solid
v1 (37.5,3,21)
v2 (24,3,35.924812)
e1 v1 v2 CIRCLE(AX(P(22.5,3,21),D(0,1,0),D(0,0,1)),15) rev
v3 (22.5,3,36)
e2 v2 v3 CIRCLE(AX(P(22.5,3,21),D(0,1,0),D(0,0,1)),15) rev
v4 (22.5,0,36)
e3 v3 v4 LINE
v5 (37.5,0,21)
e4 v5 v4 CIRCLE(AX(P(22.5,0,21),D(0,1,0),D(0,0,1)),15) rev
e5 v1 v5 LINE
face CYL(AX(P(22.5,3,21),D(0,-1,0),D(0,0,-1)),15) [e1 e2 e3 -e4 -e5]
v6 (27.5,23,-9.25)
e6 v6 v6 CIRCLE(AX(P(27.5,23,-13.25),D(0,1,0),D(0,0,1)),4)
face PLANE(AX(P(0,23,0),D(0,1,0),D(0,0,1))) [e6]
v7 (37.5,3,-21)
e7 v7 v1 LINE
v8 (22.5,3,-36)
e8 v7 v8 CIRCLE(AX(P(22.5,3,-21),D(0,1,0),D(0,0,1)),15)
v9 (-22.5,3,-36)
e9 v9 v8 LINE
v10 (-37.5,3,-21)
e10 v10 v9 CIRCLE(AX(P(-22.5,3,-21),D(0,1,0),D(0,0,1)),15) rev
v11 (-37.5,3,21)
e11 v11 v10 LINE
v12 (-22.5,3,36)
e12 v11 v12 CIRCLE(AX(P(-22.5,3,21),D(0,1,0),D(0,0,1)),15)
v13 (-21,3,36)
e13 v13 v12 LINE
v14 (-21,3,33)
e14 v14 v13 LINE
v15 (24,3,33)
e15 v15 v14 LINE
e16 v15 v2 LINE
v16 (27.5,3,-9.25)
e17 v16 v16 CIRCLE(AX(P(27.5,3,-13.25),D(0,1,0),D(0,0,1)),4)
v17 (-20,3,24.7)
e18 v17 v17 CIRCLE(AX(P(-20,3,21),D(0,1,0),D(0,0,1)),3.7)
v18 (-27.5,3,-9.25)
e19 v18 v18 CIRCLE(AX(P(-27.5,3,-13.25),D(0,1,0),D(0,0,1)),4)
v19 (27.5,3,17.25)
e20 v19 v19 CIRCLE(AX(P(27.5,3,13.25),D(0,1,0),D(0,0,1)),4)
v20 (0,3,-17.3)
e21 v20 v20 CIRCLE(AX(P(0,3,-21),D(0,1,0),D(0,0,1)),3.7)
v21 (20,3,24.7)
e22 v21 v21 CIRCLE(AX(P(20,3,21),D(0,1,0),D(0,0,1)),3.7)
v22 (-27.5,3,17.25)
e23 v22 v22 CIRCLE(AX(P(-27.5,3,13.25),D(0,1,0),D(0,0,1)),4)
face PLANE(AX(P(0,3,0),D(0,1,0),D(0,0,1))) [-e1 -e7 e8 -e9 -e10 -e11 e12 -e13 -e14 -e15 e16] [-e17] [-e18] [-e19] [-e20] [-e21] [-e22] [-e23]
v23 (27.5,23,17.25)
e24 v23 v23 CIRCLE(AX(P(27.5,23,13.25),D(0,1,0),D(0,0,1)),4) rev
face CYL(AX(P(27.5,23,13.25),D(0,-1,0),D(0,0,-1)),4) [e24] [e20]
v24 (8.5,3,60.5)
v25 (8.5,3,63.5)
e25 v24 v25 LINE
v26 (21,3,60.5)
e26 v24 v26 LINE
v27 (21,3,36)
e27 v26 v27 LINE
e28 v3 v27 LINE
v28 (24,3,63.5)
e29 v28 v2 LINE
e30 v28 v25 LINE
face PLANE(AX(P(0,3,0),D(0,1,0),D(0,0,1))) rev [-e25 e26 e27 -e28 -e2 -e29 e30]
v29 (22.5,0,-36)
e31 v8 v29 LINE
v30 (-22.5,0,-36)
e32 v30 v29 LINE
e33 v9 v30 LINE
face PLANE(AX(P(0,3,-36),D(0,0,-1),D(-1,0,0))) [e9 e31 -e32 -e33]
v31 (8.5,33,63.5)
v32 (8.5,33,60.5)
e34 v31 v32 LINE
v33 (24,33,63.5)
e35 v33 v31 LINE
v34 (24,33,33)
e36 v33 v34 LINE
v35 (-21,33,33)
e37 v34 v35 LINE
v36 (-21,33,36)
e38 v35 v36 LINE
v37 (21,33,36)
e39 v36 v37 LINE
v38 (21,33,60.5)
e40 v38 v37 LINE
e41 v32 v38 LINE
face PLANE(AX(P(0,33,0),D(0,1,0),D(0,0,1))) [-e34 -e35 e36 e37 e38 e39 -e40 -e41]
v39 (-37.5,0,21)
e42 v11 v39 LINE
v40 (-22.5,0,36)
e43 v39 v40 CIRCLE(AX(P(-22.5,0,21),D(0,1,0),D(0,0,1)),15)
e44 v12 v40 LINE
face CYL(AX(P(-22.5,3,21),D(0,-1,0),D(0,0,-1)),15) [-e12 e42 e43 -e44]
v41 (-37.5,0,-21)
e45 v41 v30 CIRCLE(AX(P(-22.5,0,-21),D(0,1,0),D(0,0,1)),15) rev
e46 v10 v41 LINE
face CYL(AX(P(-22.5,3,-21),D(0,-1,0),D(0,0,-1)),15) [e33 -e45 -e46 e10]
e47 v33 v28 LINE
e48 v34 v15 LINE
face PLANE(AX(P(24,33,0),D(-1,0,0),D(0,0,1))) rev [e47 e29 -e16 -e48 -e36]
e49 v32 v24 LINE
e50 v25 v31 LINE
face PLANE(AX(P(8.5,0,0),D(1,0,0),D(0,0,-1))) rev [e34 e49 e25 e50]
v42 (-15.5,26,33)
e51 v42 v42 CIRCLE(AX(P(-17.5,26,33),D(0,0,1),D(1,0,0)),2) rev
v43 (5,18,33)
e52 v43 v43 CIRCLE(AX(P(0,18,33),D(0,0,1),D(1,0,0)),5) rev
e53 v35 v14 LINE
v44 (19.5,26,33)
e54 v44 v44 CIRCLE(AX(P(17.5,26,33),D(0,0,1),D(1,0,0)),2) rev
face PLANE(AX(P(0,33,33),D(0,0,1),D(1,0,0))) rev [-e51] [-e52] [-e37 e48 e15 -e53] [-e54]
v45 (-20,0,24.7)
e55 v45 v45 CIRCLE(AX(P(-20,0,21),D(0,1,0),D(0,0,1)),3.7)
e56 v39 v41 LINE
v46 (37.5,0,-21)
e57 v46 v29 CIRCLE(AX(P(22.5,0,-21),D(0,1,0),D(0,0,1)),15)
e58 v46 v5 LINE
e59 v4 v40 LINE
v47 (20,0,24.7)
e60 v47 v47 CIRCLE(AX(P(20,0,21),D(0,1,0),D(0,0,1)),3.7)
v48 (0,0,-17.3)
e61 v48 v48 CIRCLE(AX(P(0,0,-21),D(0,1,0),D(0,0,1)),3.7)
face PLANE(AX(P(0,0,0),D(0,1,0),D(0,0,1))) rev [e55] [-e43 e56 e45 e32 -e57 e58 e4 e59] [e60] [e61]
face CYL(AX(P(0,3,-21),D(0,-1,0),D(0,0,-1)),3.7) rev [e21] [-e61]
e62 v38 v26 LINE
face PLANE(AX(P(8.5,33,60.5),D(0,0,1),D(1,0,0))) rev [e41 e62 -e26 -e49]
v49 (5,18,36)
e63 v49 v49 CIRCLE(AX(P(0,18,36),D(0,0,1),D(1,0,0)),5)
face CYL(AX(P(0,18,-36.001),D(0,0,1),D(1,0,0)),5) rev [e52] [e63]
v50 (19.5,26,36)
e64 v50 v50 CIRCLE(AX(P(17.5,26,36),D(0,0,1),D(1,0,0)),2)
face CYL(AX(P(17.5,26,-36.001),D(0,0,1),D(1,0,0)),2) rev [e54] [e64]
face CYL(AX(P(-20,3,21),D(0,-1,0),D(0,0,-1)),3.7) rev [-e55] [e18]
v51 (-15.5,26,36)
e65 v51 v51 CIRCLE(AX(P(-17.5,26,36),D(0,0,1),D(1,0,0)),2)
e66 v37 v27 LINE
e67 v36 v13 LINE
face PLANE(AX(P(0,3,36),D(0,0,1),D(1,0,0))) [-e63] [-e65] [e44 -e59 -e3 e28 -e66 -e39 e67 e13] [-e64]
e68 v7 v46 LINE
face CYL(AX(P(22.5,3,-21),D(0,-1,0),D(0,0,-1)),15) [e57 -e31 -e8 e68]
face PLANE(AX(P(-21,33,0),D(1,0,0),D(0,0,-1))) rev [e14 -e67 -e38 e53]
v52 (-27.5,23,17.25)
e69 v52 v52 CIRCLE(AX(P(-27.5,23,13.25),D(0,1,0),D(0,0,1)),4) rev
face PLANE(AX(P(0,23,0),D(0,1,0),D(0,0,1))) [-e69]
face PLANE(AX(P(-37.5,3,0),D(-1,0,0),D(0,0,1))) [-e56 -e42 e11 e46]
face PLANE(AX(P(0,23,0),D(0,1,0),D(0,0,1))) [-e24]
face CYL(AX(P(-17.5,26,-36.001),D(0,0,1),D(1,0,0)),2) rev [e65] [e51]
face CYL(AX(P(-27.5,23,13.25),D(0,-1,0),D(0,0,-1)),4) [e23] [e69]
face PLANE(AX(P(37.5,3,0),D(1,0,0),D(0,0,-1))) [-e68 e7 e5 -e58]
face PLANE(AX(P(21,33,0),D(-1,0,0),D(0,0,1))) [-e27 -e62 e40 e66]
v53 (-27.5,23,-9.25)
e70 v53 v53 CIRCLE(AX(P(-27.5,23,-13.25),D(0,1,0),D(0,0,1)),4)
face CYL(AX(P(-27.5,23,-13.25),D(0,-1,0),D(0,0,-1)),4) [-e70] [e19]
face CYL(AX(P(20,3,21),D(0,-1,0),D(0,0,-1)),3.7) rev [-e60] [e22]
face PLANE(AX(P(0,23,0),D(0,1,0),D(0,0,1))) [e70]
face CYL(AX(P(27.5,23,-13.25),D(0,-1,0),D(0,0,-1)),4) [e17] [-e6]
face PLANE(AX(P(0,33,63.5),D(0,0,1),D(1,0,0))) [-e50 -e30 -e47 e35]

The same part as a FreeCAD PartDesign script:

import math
import FreeCAD as App
import Part
import Sketcher

V = App.Vector
Q = App.Units.Quantity


def add_polygon(sketch, points):
    """Adds a closed chain of lines whose ends are joined by coincident constraints."""
    first, n = sketch.GeometryCount, len(points)
    for a, b in zip(points, points[1:] + points[:1]):
        sketch.addGeometry(Part.LineSegment(App.Vector(*a, 0), App.Vector(*b, 0)), False)
    for i in range(n):
        sketch.addConstraint(Sketcher.Constraint("Coincident", first + i, 2, first + (i + 1) % n, 1))

doc = App.newDocument("Part")
body = doc.addObject("PartDesign::Body", "Body")

# Sketch on XZ plane
sketch1 = body.newObject("Sketcher::SketchObject", "Sketch")
sketch1.AttachmentSupport = (doc.getObject("XZ_Plane"), [""])
sketch1.MapMode = "FlatFace"
sketch1.addGeometry([
    Part.LineSegment(V(-37.5, -21, 0), V(-37.5, 21, 0)),  # 0
    Part.ArcOfCircle(Part.Circle(V(-22.5, 21, 0), V(0, 0, 1), 15), math.radians(90), math.radians(180)),  # 1
    Part.LineSegment(V(-22.5, 36, 0), V(22.5, 36, 0)),  # 2
    Part.ArcOfCircle(Part.Circle(V(22.5, 21, 0), V(0, 0, 1), 15), math.radians(0), math.radians(90)),  # 3
    Part.LineSegment(V(37.5, 21, 0), V(37.5, -21, 0)),  # 4
    Part.ArcOfCircle(Part.Circle(V(22.5, -21, 0), V(0, 0, 1), 15), math.radians(-90), math.radians(0)),  # 5
    Part.LineSegment(V(22.5, -36, 0), V(-22.5, -36, 0)),  # 6
    Part.ArcOfCircle(Part.Circle(V(-22.5, -21, 0), V(0, 0, 1), 15), math.radians(180), math.radians(270)),  # 7
    Part.Circle(V(20, 21, 0), V(0, 0, 1), 3.7),  # 8
    Part.Circle(V(-20, 21, 0), V(0, 0, 1), 3.7),  # 9
    Part.Circle(V(0, -21, 0), V(0, 0, 1), 3.7),  # 10
], False)
sketch1.addConstraint([
    Sketcher.Constraint("Tangent", 0, 2, 1, 2),
    Sketcher.Constraint("Tangent", 1, 1, 2, 1),
    Sketcher.Constraint("Tangent", 2, 2, 3, 2),
    Sketcher.Constraint("Tangent", 3, 1, 4, 1),
    Sketcher.Constraint("Tangent", 4, 2, 5, 2),
    Sketcher.Constraint("Tangent", 5, 1, 6, 1),
    Sketcher.Constraint("Tangent", 6, 2, 7, 2),
    Sketcher.Constraint("Tangent", 7, 1, 0, 1),
    Sketcher.Constraint("Vertical", 0),
    Sketcher.Constraint("Horizontal", 2),
    Sketcher.Constraint("Vertical", 4),
    Sketcher.Constraint("Horizontal", 6),
    Sketcher.Constraint("Equal", 1, 3),
    Sketcher.Constraint("Equal", 3, 5),
    Sketcher.Constraint("Equal", 5, 7),
    Sketcher.Constraint("Equal", 8, 9),
    Sketcher.Constraint("Equal", 9, 10),
    Sketcher.Constraint("Symmetric", 1, 3, 5, 3, -1, 1),
    Sketcher.Constraint("Symmetric", 8, 3, 9, 3, -2),
    Sketcher.Constraint("PointOnObject", 10, 3, -2),
    Sketcher.Constraint("Horizontal", 3, 3, 8, 3),
    Sketcher.Constraint("Horizontal", 7, 3, 10, 3),
    Sketcher.Constraint("Radius", 1, Q("15 mm")),
    Sketcher.Constraint("Diameter", 8, Q("7.4 mm")),
    Sketcher.Constraint("DistanceX", 2, 1, 2, 2, Q("45 mm")),
    Sketcher.Constraint("DistanceY", 0, 1, 0, 2, Q("42 mm")),
    Sketcher.Constraint("DistanceX", -1, 1, 8, 3, Q("20 mm")),
])
pad1 = body.newObject("PartDesign::Pad", "Pad")
pad1.Profile = sketch1
pad1.Length = 3
pad1.Reversed = True

# Sketch on XZ plane
sketch2 = body.newObject("Sketcher::SketchObject", "Sketch001")
sketch2.AttachmentSupport = (doc.getObject("XZ_Plane"), [""])
sketch2.MapMode = "FlatFace"
sketch2.AttachmentOffset = App.Placement(V(0, 0, -3), App.Rotation())
sketch2.addGeometry([
    Part.Circle(V(27.5, -13.2, 0), V(0, 0, 1), 4),
    Part.Circle(V(-27.5, 13.2, 0), V(0, 0, 1), 4),
    Part.Circle(V(27.5, 13.2, 0), V(0, 0, 1), 4),
    Part.Circle(V(-27.5, -13.2, 0), V(0, 0, 1), 4),
], False)
sketch2.addConstraint([
    Sketcher.Constraint("Equal", 0, 1),
    Sketcher.Constraint("Equal", 1, 2),
    Sketcher.Constraint("Equal", 2, 3),
    Sketcher.Constraint("Symmetric", 0, 3, 1, 3, -1, 1),
    Sketcher.Constraint("Symmetric", 2, 3, 3, 3, -1, 1),
    Sketcher.Constraint("Symmetric", 1, 3, 2, 3, -2),
    Sketcher.Constraint("Diameter", 0, Q("8 mm")),
    Sketcher.Constraint("DistanceX", 1, 3, 0, 3, Q("55 mm")),
    Sketcher.Constraint("DistanceY", 0, 3, 1, 3, Q("26.5 mm")),
])
pad2 = body.newObject("PartDesign::Pad", "Pad001")
pad2.Profile = sketch2
pad2.Length = 20
pad2.Reversed = True

# Sketch on XZ plane
sketch3 = body.newObject("Sketcher::SketchObject", "Sketch002")
sketch3.AttachmentSupport = (doc.getObject("XZ_Plane"), [""])
sketch3.MapMode = "FlatFace"
sketch3.AttachmentOffset = App.Placement(V(0, 0, -3), App.Rotation())
add_polygon(sketch3, [(24, 63.5), (24, 33), (-21, 33), (-21, 36), (21, 36), (21, 63.5)])  # lines 0-5
sketch3.addConstraint([
    Sketcher.Constraint("Vertical", 0),
    Sketcher.Constraint("Horizontal", 1),
    Sketcher.Constraint("Vertical", 2),
    Sketcher.Constraint("Horizontal", 3),
    Sketcher.Constraint("Vertical", 4),
    Sketcher.Constraint("Horizontal", 5),
    Sketcher.Constraint("Equal", 5, 2),
    Sketcher.Constraint("DistanceX", 1, 2, 1, 1, Q("45 mm")),
    Sketcher.Constraint("DistanceX", 3, 1, 3, 2, Q("42 mm")),
    Sketcher.Constraint("DistanceY", 0, 2, 0, 1, Q("30.5 mm")),
    Sketcher.Constraint("DistanceX", -1, 1, 0, 2, Q("24 mm")),
    Sketcher.Constraint("DistanceY", -1, 1, 0, 2, Q("33 mm")),
])
pad3 = body.newObject("PartDesign::Pad", "Pad002")
pad3.Profile = sketch3
pad3.Length = 30
pad3.Reversed = True

# Sketch on XY plane
sketch4 = body.newObject("Sketcher::SketchObject", "Sketch003")
sketch4.AttachmentSupport = (doc.getObject("XY_Plane"), [""])
sketch4.MapMode = "FlatFace"
sketch4.AttachmentOffset = App.Placement(V(0, 0, 36), App.Rotation())
sketch4.addGeometry(Part.Circle(V(0, 18, 0), V(0, 0, 1), 5), False)
sketch4.addConstraint([
    Sketcher.Constraint("PointOnObject", 0, 3, -2),
    Sketcher.Constraint("Diameter", 0, Q("10 mm")),
    Sketcher.Constraint("DistanceY", -1, 1, 0, 3, Q("18 mm")),
])
pocket1 = body.newObject("PartDesign::Pocket", "Pocket")
pocket1.Profile = sketch4
pocket1.Type = "UpToFirst"

# Sketch on XY plane
sketch5 = body.newObject("Sketcher::SketchObject", "Sketch004")
sketch5.AttachmentSupport = (doc.getObject("XY_Plane"), [""])
sketch5.MapMode = "FlatFace"
sketch5.AttachmentOffset = App.Placement(V(0, 0, 36), App.Rotation())
sketch5.addGeometry(Part.Circle(V(-17.5, 26, 0), V(0, 0, 1), 2), False)
sketch5.addConstraint([
    Sketcher.Constraint("Diameter", 0, Q("4 mm")),
    Sketcher.Constraint("DistanceY", -1, 1, 0, 3, Q("26 mm")),
    Sketcher.Constraint("DistanceX", 0, 3, -1, 1, Q("17.5 mm")),
])
pocket2 = body.newObject("PartDesign::Pocket", "Pocket001")
pocket2.Profile = sketch5
pocket2.Type = "UpToFirst"

# Sketch on XY plane
sketch6 = body.newObject("Sketcher::SketchObject", "Sketch005")
sketch6.AttachmentSupport = (doc.getObject("XY_Plane"), [""])
sketch6.MapMode = "FlatFace"
sketch6.AttachmentOffset = App.Placement(V(0, 0, 36), App.Rotation())
sketch6.addGeometry(Part.Circle(V(17.5, 26, 0), V(0, 0, 1), 2), False)
sketch6.addConstraint([
    Sketcher.Constraint("Diameter", 0, Q("4 mm")),
    Sketcher.Constraint("DistanceY", -1, 1, 0, 3, Q("26 mm")),
    Sketcher.Constraint("DistanceX", -1, 1, 0, 3, Q("17.5 mm")),
])
pocket3 = body.newObject("PartDesign::Pocket", "Pocket002")
pocket3.Profile = sketch6
pocket3.Type = "UpToFirst"

# Sketch on YZ plane
sketch7 = body.newObject("Sketcher::SketchObject", "Sketch006")
sketch7.AttachmentSupport = (doc.getObject("YZ_Plane"), [""])
sketch7.MapMode = "FlatFace"
sketch7.AttachmentOffset = App.Placement(V(0, 0, 21), App.Rotation())
add_polygon(sketch7, [(33, 60.5), (3, 60.5), (3, 63.5), (33, 63.5)])  # lines 0-3
sketch7.addConstraint([
    Sketcher.Constraint("Horizontal", 0),
    Sketcher.Constraint("Vertical", 1),
    Sketcher.Constraint("Horizontal", 2),
    Sketcher.Constraint("Vertical", 3),
    Sketcher.Constraint("DistanceX", 0, 2, 0, 1, Q("30 mm")),
    Sketcher.Constraint("DistanceY", 1, 1, 1, 2, Q("3 mm")),
    Sketcher.Constraint("DistanceX", -1, 1, 0, 2, Q("3 mm")),
    Sketcher.Constraint("DistanceY", -1, 1, 0, 2, Q("60.5 mm")),
])
pad4 = body.newObject("PartDesign::Pad", "Pad003")
pad4.Profile = sketch7
pad4.Length = 12.5
pad4.Reversed = True

doc.recompute()
